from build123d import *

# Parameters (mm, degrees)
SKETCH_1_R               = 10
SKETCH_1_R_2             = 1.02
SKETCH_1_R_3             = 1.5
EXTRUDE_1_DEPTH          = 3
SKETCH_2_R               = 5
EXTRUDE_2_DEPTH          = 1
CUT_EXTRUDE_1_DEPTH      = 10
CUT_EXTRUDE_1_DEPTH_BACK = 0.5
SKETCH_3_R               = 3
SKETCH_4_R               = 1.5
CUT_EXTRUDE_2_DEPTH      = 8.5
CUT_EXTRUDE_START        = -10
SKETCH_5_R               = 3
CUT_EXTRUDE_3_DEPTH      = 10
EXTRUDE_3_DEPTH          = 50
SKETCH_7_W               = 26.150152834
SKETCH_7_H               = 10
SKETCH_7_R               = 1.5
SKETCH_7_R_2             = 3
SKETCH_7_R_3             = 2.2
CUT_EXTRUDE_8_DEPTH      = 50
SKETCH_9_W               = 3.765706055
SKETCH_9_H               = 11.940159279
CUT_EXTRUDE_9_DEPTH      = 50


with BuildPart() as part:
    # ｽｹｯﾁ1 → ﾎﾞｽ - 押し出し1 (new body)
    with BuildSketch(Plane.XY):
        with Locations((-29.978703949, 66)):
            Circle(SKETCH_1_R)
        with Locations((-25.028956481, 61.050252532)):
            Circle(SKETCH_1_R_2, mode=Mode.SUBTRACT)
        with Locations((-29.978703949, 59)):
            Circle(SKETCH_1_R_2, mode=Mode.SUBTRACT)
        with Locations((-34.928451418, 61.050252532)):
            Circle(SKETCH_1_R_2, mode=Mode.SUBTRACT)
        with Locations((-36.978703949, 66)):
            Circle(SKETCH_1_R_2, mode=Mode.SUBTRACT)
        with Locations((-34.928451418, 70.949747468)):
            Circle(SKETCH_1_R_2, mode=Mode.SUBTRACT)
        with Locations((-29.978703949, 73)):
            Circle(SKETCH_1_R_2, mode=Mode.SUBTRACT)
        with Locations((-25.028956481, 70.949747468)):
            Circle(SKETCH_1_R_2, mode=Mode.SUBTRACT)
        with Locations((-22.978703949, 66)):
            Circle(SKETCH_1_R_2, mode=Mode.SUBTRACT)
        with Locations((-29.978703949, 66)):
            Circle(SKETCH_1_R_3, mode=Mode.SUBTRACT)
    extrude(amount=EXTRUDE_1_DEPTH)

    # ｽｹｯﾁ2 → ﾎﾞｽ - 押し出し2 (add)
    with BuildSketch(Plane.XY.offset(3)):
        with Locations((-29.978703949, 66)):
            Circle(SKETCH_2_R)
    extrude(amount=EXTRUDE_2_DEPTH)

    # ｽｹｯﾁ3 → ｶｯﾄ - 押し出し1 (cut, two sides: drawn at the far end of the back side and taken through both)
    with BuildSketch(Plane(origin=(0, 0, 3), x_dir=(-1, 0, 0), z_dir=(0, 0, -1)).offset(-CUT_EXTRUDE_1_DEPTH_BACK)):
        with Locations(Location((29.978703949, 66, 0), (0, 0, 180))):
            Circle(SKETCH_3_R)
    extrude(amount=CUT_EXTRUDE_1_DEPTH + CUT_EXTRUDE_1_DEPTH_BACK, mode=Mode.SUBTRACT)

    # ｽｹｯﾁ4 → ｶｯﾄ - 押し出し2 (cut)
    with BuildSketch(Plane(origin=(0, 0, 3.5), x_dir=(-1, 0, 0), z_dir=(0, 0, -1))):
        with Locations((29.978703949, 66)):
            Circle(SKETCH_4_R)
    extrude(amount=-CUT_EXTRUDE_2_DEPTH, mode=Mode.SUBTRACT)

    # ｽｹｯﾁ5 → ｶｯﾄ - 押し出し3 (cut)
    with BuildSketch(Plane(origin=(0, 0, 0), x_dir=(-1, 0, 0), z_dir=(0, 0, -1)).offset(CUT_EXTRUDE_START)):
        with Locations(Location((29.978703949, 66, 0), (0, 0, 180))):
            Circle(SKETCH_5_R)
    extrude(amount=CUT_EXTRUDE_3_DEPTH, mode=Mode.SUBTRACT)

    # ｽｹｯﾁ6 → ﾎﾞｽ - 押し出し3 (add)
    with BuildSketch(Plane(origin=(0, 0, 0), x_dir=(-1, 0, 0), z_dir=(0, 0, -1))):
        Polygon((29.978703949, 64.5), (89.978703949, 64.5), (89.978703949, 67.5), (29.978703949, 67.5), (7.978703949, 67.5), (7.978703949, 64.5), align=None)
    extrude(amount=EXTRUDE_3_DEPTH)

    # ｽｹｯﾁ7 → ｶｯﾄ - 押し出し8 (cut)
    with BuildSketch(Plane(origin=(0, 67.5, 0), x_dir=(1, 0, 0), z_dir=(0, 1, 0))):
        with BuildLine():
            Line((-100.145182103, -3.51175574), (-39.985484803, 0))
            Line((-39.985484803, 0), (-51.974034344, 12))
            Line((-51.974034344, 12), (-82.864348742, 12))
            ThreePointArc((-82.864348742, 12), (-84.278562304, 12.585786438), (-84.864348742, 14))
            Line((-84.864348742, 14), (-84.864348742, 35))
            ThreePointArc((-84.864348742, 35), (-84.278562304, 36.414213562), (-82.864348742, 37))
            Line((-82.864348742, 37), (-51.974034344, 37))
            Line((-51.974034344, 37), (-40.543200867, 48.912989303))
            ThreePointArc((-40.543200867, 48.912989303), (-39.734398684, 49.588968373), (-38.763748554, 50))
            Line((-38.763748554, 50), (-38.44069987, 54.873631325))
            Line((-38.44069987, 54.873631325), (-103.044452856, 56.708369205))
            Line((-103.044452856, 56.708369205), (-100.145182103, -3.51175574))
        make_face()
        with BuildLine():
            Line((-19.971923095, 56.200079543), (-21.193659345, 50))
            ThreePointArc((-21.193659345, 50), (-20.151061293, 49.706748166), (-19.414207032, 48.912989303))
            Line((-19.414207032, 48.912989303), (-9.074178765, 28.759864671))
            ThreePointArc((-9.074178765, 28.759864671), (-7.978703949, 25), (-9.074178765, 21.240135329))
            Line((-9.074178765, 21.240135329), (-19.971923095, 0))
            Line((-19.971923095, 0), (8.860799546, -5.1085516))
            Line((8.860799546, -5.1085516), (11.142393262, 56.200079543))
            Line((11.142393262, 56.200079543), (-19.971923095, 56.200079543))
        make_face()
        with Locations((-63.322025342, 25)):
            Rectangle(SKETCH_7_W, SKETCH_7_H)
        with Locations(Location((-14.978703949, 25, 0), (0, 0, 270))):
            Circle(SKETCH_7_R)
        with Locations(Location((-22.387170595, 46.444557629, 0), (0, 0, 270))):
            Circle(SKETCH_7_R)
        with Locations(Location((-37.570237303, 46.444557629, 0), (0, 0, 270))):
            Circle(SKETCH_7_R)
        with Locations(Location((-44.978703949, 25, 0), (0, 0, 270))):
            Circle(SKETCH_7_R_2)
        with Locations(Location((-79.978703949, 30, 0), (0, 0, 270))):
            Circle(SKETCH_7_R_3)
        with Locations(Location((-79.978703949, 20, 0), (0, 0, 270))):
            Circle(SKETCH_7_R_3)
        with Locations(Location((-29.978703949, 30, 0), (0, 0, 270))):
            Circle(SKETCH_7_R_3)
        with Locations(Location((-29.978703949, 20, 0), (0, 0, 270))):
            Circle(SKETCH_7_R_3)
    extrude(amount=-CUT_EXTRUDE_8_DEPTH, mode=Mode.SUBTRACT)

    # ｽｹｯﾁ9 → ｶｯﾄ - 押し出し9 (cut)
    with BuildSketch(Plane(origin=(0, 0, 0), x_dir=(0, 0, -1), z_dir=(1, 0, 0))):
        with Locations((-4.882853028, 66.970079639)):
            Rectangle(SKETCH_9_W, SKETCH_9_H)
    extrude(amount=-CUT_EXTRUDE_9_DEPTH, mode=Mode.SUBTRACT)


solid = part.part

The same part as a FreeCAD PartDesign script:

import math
import FreeCAD as App
import Part
import Sketcher

V = App.Vector

doc = App.newDocument("Part")
body = doc.addObject("PartDesign::Body", "Body")

# Sketch on XY plane
sketch1 = body.newObject("Sketcher::SketchObject", "Sketch")
sketch1.AttachmentSupport = (doc.getObject("XY_Plane"), [""])
sketch1.MapMode = "FlatFace"
sketch1.addGeometry(Part.Circle(V(-30, 66, 0), V(0, 0, 1), 10), False)
sketch1.addGeometry(Part.Circle(V(-34.9, 61.1, 0), V(0, 0, 1), 1), False)
sketch1.addGeometry(Part.Circle(V(-30, 59, 0), V(0, 0, 1), 1), False)
sketch1.addGeometry(Part.Circle(V(-25, 61.1, 0), V(0, 0, 1), 1), False)
sketch1.addGeometry(Part.Circle(V(-37, 66, 0), V(0, 0, 1), 1), False)
sketch1.addGeometry(Part.Circle(V(-34.9, 70.9, 0), V(0, 0, 1), 1), False)
sketch1.addGeometry(Part.Circle(V(-30, 66, 0), V(0, 0, 1), 1.5), False)
sketch1.addGeometry(Part.Circle(V(-23, 66, 0), V(0, 0, 1), 1), False)
sketch1.addGeometry(Part.Circle(V(-30, 73, 0), V(0, 0, 1), 1), False)
sketch1.addGeometry(Part.Circle(V(-25, 70.9, 0), V(0, 0, 1), 1), False)
sketch1.addConstraint(Sketcher.Constraint("Coincident", 6, 3, 0, 3))
sketch1.addConstraint(Sketcher.Constraint("Equal", 1, 2))
sketch1.addConstraint(Sketcher.Constraint("Equal", 2, 3))
sketch1.addConstraint(Sketcher.Constraint("Equal", 3, 4))
sketch1.addConstraint(Sketcher.Constraint("Equal", 4, 5))
sketch1.addConstraint(Sketcher.Constraint("Equal", 5, 7))
sketch1.addConstraint(Sketcher.Constraint("Equal", 7, 8))
sketch1.addConstraint(Sketcher.Constraint("Equal", 8, 9))
sketch1.addConstraint(Sketcher.Constraint("Horizontal", 1, 3, 3, 3))
sketch1.addConstraint(Sketcher.Constraint("Horizontal", 0, 3, 4, 3))
sketch1.addConstraint(Sketcher.Constraint("Horizontal", 6, 3, 7, 3))
sketch1.addConstraint(Sketcher.Constraint("Horizontal", 5, 3, 9, 3))
sketch1.addConstraint(Sketcher.Constraint("Vertical", 0, 3, 2, 3))
sketch1.addConstraint(Sketcher.Constraint("Vertical", 1, 3, 5, 3))
sketch1.addConstraint(Sketcher.Constraint("Vertical", 6, 3, 8, 3))
sketch1.addConstraint(Sketcher.Constraint("Vertical", 3, 3, 9, 3))
sketch1.addConstraint(Sketcher.Constraint("Diameter", 0, 20.0))
sketch1.addConstraint(Sketcher.Constraint("Diameter", 6, 3.0))
sketch1.addConstraint(Sketcher.Constraint("Diameter", 1, 2.04))
sketch1.addConstraint(Sketcher.Constraint("DistanceY", -1, 1, 0, 3, 66.0))
sketch1.addConstraint(Sketcher.Constraint("DistanceY", -1, 1, 2, 3, 59.0))
sketch1.addConstraint(Sketcher.Constraint("DistanceY", -1, 1, 8, 3, 73.0))
sketch1.addConstraint(Sketcher.Constraint("DistanceX", 4, 3, 0, 3, 7.0))
sketch1.addConstraint(Sketcher.Constraint("DistanceX", 0, 3, 7, 3, 7.0))
sketch1.addConstraint(Sketcher.Constraint("DistanceX", 1, 3, -1, 1, 34.928451))
sketch1.addConstraint(Sketcher.Constraint("DistanceX", 0, 3, -1, 1, 29.978704))
sketch1.addConstraint(Sketcher.Constraint("DistanceY", -1, 1, 1, 3, 61.050253))
sketch1.addConstraint(Sketcher.Constraint("DistanceX", 3, 3, -1, 1, 25.028956))
sketch1.addConstraint(Sketcher.Constraint("DistanceY", -1, 1, 5, 3, 70.949747))
pad1 = body.newObject("PartDesign::Pad", "Pad")
pad1.Profile = sketch1
pad1.Length = 3

# Sketch on XY plane
sketch2 = body.newObject("Sketcher::SketchObject", "Sketch001")
sketch2.AttachmentSupport = (doc.getObject("XY_Plane"), [""])
sketch2.MapMode = "FlatFace"
sketch2.AttachmentOffset = App.Placement(V(0, 0, 3), App.Rotation())
sketch2.addGeometry(Part.Circle(V(-30, 66, 0), V(0, 0, 1), 5), False)
sketch2.addConstraint(Sketcher.Constraint("Diameter", 0, 10.0))
sketch2.addConstraint(Sketcher.Constraint("DistanceY", -1, 1, 0, 3, 66.0))
sketch2.addConstraint(Sketcher.Constraint("DistanceX", 0, 3, -1, 1, 29.978704))
pad2 = body.newObject("PartDesign::Pad", "Pad001")
pad2.Profile = sketch2
pad2.Length = 1

# Sketch on XY plane
sketch3 = body.newObject("Sketcher::SketchObject", "Sketch002")
sketch3.AttachmentSupport = (doc.getObject("XY_Plane"), [""])
sketch3.MapMode = "FlatFace"
sketch3.AttachmentOffset = App.Placement(V(0, 0, 3), App.Rotation())
sketch3.addGeometry(Part.Circle(V(-30, 66, 0), V(0, 0, 1), 3), False)
sketch3.addConstraint(Sketcher.Constraint("Diameter", 0, 6.0))
sketch3.addConstraint(Sketcher.Constraint("DistanceY", -1, 1, 0, 3, 66.0))
sketch3.addConstraint(Sketcher.Constraint("DistanceX", 0, 3, -1, 1, 29.978704))
pocket1 = body.newObject("PartDesign::Pocket", "Pocket")
pocket1.Profile = sketch3
pocket1.Type = "TwoLengths"
pocket1.Length = 10
pocket1.Length2 = 0.5

# Sketch on XY plane
sketch4 = body.newObject("Sketcher::SketchObject", "Sketch003")
sketch4.AttachmentSupport = (doc.getObject("XY_Plane"), [""])
sketch4.MapMode = "FlatFace"
sketch4.AttachmentOffset = App.Placement(V(0, 0, 3.5), App.Rotation())
sketch4.addGeometry(Part.Circle(V(-30, 66, 0), V(0, 0, 1), 1.5), False)
sketch4.addConstraint(Sketcher.Constraint("Diameter", 0, 3.0))
sketch4.addConstraint(Sketcher.Constraint("DistanceY", -1, 1, 0, 3, 66.0))
sketch4.addConstraint(Sketcher.Constraint("DistanceX", 0, 3, -1, 1, 29.978704))
pocket2 = body.newObject("PartDesign::Pocket", "Pocket001")
pocket2.Profile = sketch4
pocket2.Length = 8.5
pocket2.Reversed = True

# Sketch on XY plane
sketch5 = body.newObject("Sketcher::SketchObject", "Sketch004")
sketch5.AttachmentSupport = (doc.getObject("XY_Plane"), [""])
sketch5.MapMode = "FlatFace"
sketch5.AttachmentOffset = App.Placement(V(0, 0, 10), App.Rotation())
sketch5.addGeometry(Part.Circle(V(-30, 66, 0), V(0, 0, 1), 3), False)
sketch5.addConstraint(Sketcher.Constraint("Diameter", 0, 6.0))
sketch5.addConstraint(Sketcher.Constraint("DistanceY", -1, 1, 0, 3, 66.0))
sketch5.addConstraint(Sketcher.Constraint("DistanceX", 0, 3, -1, 1, 29.978704))
pocket3 = body.newObject("PartDesign::Pocket", "Pocket002")
pocket3.Profile = sketch5
pocket3.Length = 10

# Sketch on XY plane
sketch6 = body.newObject("Sketcher::SketchObject", "Sketch005")
sketch6.AttachmentSupport = (doc.getObject("XY_Plane"), [""])
sketch6.MapMode = "FlatFace"
sketch6.addGeometry(Part.LineSegment(V(-90, 64.5, 0), V(-90, 67.5, 0)), False)
sketch6.addGeometry(Part.LineSegment(V(-90, 67.5, 0), V(-8, 67.5, 0)), False)
sketch6.addGeometry(Part.LineSegment(V(-8, 67.5, 0), V(-8, 64.5, 0)), False)
sketch6.addGeometry(Part.LineSegment(V(-8, 64.5, 0), V(-90, 64.5, 0)), False)
sketch6.addConstraint(Sketcher.Constraint("Coincident", 0, 2, 1, 1))
sketch6.addConstraint(Sketcher.Constraint("Coincident", 1, 2, 2, 1))
sketch6.addConstraint(Sketcher.Constraint("Coincident", 2, 2, 3, 1))
sketch6.addConstraint(Sketcher.Constraint("Coincident", 3, 2, 0, 1))
sketch6.addConstraint(Sketcher.Constraint("Vertical", 0))
sketch6.addConstraint(Sketcher.Constraint("Horizontal", 1))
sketch6.addConstraint(Sketcher.Constraint("Vertical", 2))
sketch6.addConstraint(Sketcher.Constraint("Horizontal", 3))
sketch6.addConstraint(Sketcher.Constraint("DistanceX", 1, 1, 1, 2, 82.0))
sketch6.addConstraint(Sketcher.Constraint("DistanceY", 0, 1, 0, 2, 3.0))
sketch6.addConstraint(Sketcher.Constraint("DistanceY", -1, 1, 0, 2, 67.5))
sketch6.addConstraint(Sketcher.Constraint("DistanceX", 0, 2, -1, 1, 89.978704))
pad3 = body.newObject("PartDesign::Pad", "Pad002")
pad3.Profile = sketch6
pad3.Length = 50
pad3.Reversed = True

# Sketch on XZ plane
sketch7 = body.newObject("Sketcher::SketchObject", "Sketch006")
sketch7.AttachmentSupport = (doc.getObject("XZ_Plane"), [""])
sketch7.MapMode = "FlatFace"
sketch7.AttachmentOffset = App.Placement(V(0, 0, -67.5), App.Rotation())
sketch7.addGeometry(Part.LineSegment(V(-100.1, 3.5, 0), V(-40, 0, 0)), False)
sketch7.addGeometry(Part.LineSegment(V(-40, 0, 0), V(-52, -12, 0)), False)
sketch7.addGeometry(Part.LineSegment(V(-52, -12, 0), V(-82.9, -12, 0)), False)
sketch7.addGeometry(Part.ArcOfCircle(Part.Circle(V(-82.9, -14, 0), V(0, 0, 1), 2), math.radians(90), math.radians(180)), False)
sketch7.addGeometry(Part.LineSegment(V(-84.9, -14, 0), V(-84.9, -35, 0)), False)
sketch7.addGeometry(Part.ArcOfCircle(Part.Circle(V(-82.9, -35, 0), V(0, 0, 1), 2), math.radians(-180), math.radians(-90)), False)
sketch7.addGeometry(Part.LineSegment(V(-82.9, -37, 0), V(-52, -37, 0)), False)
sketch7.addGeometry(Part.LineSegment(V(-52, -37, 0), V(-40.5, -48.9, 0)), False)
sketch7.addGeometry(Part.ArcOfCircle(Part.Circle(V(-37.9, -46.5, 0), V(0, 0, 1), 3.6), math.radians(-138), math.radians(-104)), False)
sketch7.addGeometry(Part.LineSegment(V(-38.8, -50, 0), V(-38.4, -54.9, 0)), False)
sketch7.addGeometry(Part.LineSegment(V(-38.4, -54.9, 0), V(-103, -56.7, 0)), False)
sketch7.addGeometry(Part.LineSegment(V(-103, -56.7, 0), V(-100.1, 3.5, 0)), False)
sketch7.addGeometry(Part.LineSegment(V(-20, -56.2, 0), V(-21.2, -50, 0)), False)
sketch7.addGeometry(Part.ArcOfCircle(Part.Circle(V(-21.2, -48, 0), V(0, 0, 1), 2), math.radians(-90), math.radians(-27)), False)
sketch7.addGeometry(Part.LineSegment(V(-19.4, -48.9, 0), V(-9.1, -28.8, 0)), False)
sketch7.addGeometry(Part.ArcOfCircle(Part.Circle(V(-15, -25, 0), V(0, 0, 1), 7), math.radians(-32), math.radians(32)), False)
sketch7.addGeometry(Part.LineSegment(V(-9.1, -21.2, 0), V(-20, 0, 0)), False)
sketch7.addGeometry(Part.LineSegment(V(-20, 0, 0), V(8.9, 5.1, 0)), False)
sketch7.addGeometry(Part.LineSegment(V(8.9, 5.1, 0), V(11.1, -56.2, 0)), False)
sketch7.addGeometry(Part.LineSegment(V(11.1, -56.2, 0), V(-20, -56.2, 0)), False)
sketch7.addGeometry(Part.LineSegment(V(-76.4, -30, 0), V(-76.4, -20, 0)), False)
sketch7.addGeometry(Part.LineSegment(V(-76.4, -20, 0), V(-50.2, -20, 0)), False)
sketch7.addGeometry(Part.LineSegment(V(-50.2, -20, 0), V(-50.2, -30, 0)), False)
sketch7.addGeometry(Part.LineSegment(V(-50.2, -30, 0), V(-76.4, -30, 0)), False)
sketch7.addGeometry(Part.Circle(V(-15, -25, 0), V(0, 0, 1), 1.5), False)
sketch7.addGeometry(Part.Circle(V(-22.4, -46.4, 0), V(0, 0, 1), 1.5), False)
sketch7.addGeometry(Part.Circle(V(-37.6, -46.4, 0), V(0, 0, 1), 1.5), False)
sketch7.addGeometry(Part.Circle(V(-45, -25, 0), V(0, 0, 1), 3), False)
sketch7.addGeometry(Part.Circle(V(-80, -30, 0), V(0, 0, 1), 2.2), False)
sketch7.addGeometry(Part.Circle(V(-80, -20, 0), V(0, 0, 1), 2.2), False)
sketch7.addGeometry(Part.Circle(V(-30, -30, 0), V(0, 0, 1), 2.2), False)
sketch7.addGeometry(Part.Circle(V(-30, -20, 0), V(0, 0, 1), 2.2), False)
sketch7.addConstraint(Sketcher.Constraint("Coincident", 0, 2, 1, 1))
sketch7.addConstraint(Sketcher.Constraint("Coincident", 1, 2, 2, 1))
sketch7.addConstraint(Sketcher.Constraint("Tangent", 2, 2, 3, 1))
sketch7.addConstraint(Sketcher.Constraint("Tangent", 3, 2, 4, 1))
sketch7.addConstraint(Sketcher.Constraint("Tangent", 4, 2, 5, 1))
sketch7.addConstraint(Sketcher.Constraint("Tangent", 5, 2, 6, 1))
sketch7.addConstraint(Sketcher.Constraint("Coincident", 6, 2, 7, 1))
sketch7.addConstraint(Sketcher.Constraint("Coincident", 7, 2, 8, 1))
sketch7.addConstraint(Sketcher.Constraint("Coincident", 8, 2, 9, 1))
sketch7.addConstraint(Sketcher.Constraint("Coincident", 9, 2, 10, 1))
sketch7.addConstraint(Sketcher.Constraint("Coincident", 10, 2, 11, 1))
sketch7.addConstraint(Sketcher.Constraint("Coincident", 11, 2, 0, 1))
sketch7.addConstraint(Sketcher.Constraint("Coincident", 12, 2, 13, 1))
sketch7.addConstraint(Sketcher.Constraint("Tangent", 13, 2, 14, 1))
sketch7.addConstraint(Sketcher.Constraint("Coincident", 14, 2, 15, 1))
sketch7.addConstraint(Sketcher.Constraint("Coincident", 15, 2, 16, 1))
sketch7.addConstraint(Sketcher.Constraint("Coincident", 16, 2, 17, 1))
sketch7.addConstraint(Sketcher.Constraint("Coincident", 17, 2, 18, 1))
sketch7.addConstraint(Sketcher.Constraint("Coincident", 18, 2, 19, 1))
sketch7.addConstraint(Sketcher.Constraint("Coincident", 19, 2, 12, 1))
sketch7.addConstraint(Sketcher.Constraint("Coincident", 20, 2, 21, 1))
sketch7.addConstraint(Sketcher.Constraint("Coincident", 21, 2, 22, 1))
sketch7.addConstraint(Sketcher.Constraint("Coincident", 22, 2, 23, 1))
sketch7.addConstraint(Sketcher.Constraint("Coincident", 23, 2, 20, 1))
sketch7.addConstraint(Sketcher.Constraint("Horizontal", 2))
sketch7.addConstraint(Sketcher.Constraint("Vertical", 4))
sketch7.addConstraint(Sketcher.Constraint("Horizontal", 6))
sketch7.addConstraint(Sketcher.Constraint("Horizontal", 19))
sketch7.addConstraint(Sketcher.Constraint("Vertical", 20))
sketch7.addConstraint(Sketcher.Constraint("Horizontal", 21))
sketch7.addConstraint(Sketcher.Constraint("Vertical", 22))
sketch7.addConstraint(Sketcher.Constraint("Horizontal", 23))
sketch7.addConstraint(Sketcher.Constraint("Coincident", 24, 3, 15, 3))
sketch7.addConstraint(Sketcher.Constraint("Equal", 3, 5))
sketch7.addConstraint(Sketcher.Constraint("Equal", 5, 13))
sketch7.addConstraint(Sketcher.Constraint("Equal", 24, 25))
sketch7.addConstraint(Sketcher.Constraint("Equal", 25, 26))
sketch7.addConstraint(Sketcher.Constraint("Equal", 28, 29))
sketch7.addConstraint(Sketcher.Constraint("Equal", 29, 30))
sketch7.addConstraint(Sketcher.Constraint("Equal", 30, 31))
sketch7.addConstraint(Sketcher.Constraint("PointOnObject", 0, 2, -1))
sketch7.addConstraint(Sketcher.Constraint("PointOnObject", 16, 2, -1))
sketch7.addConstraint(Sketcher.Constraint("Horizontal", 25, 3, 26, 3))
sketch7.addConstraint(Sketcher.Constraint("Horizontal", 24, 3, 27, 3))
sketch7.addConstraint(Sketcher.Constraint("Horizontal", 28, 3, 30, 3))
sketch7.addConstraint(Sketcher.Constraint("Horizontal", 29, 3, 31, 3))
sketch7.addConstraint(Sketcher.Constraint("Horizontal", 8, 2, 12, 2))
sketch7.addConstraint(Sketcher.Constraint("Horizontal", 7, 2, 13, 2))
sketch7.addConstraint(Sketcher.Constraint("Horizontal", 31, 3, 20, 2))
sketch7.addConstraint(Sketcher.Constraint("Horizontal", 30, 3, 22, 2))
sketch7.addConstraint(Sketcher.Constraint("Vertical", 28, 3, 29, 3))
sketch7.addConstraint(Sketcher.Constraint("Vertical", 30, 3, 31, 3))
sketch7.addConstraint(Sketcher.Constraint("Vertical", 1, 2, 6, 2))
sketch7.addConstraint(Sketcher.Constraint("Vertical", 13, 3, 12, 2))
sketch7.addConstraint(Sketcher.Constraint("Vertical", 14, 2, 15, 2))
sketch7.addConstraint(Sketcher.Constraint("Vertical", 16, 2, 19, 2))
sketch7.addConstraint(Sketcher.Constraint("Diameter", 24, 3.0))
sketch7.addConstraint(Sketcher.Constraint("Diameter", 27, 6.0))
sketch7.addConstraint(Sketcher.Constraint("Radius", 3, 2.0))
sketch7.addConstraint(Sketcher.Constraint("Radius", 15, 7.0))
sketch7.addConstraint(Sketcher.Constraint("Diameter", 28, 4.4))
sketch7.addConstraint(Sketcher.Constraint("DistanceY", 4, 2, 4, 1, 21.0))
sketch7.addConstraint(Sketcher.Constraint("DistanceY", 20, 1, 20, 2, 10.0))
sketch7.addConstraint(Sketcher.Constraint("DistanceY", 3, 3, -1, 1, 14.0))
sketch7.addConstraint(Sketcher.Constraint("DistanceY", 13, 3, -1, 1, 48.0))
sketch7.addConstraint(Sketcher.Constraint("DistanceY", 15, 3, -1, 1, 25.0))
sketch7.addConstraint(Sketcher.Constraint("DistanceY", 28, 3, -1, 1, 30.0))
sketch7.addConstraint(Sketcher.Constraint("DistanceX", 27, 3, 24, 3, 30.0))
sketch7.addConstraint(Sketcher.Constraint("DistanceX", 28, 3, 27, 3, 35.0))
sketch7.addConstraint(Sketcher.Constraint("DistanceX", 30, 3, 24, 3, 15.0))
sketch7.addConstraint(Sketcher.Constraint("Radius", 8, 3.57879))
sketch7.addConstraint(Sketcher.Constraint("Distance", 10, 64.629801))
sketch7.addConstraint(Sketcher.Constraint("DistanceX", 7, 2, -1, 1, 40.543201))
sketch7.addConstraint(Sketcher.Constraint("DistanceX", 9, 2, -1, 1, 38.4407))
sketch7.addConstraint(Sketcher.Constraint("DistanceX", -1, 1, 17, 2, 8.8608))
sketch7.addConstraint(Sketcher.Constraint("DistanceX", 20, 2, -1, 1, 76.397102))
sketch7.addConstraint(Sketcher.Constraint("DistanceX", 13, 2, 18, 2, 30.5566))
sketch7.addConstraint(Sketcher.Constraint("Distance", 14, 22.65093))
sketch7.addConstraint(Sketcher.Constraint("Distance", 17, 29.281789))
sketch7.addConstraint(Sketcher.Constraint("Distance", 18, 61.351071))
sketch7.addConstraint(Sketcher.Constraint("DistanceX", 2, 2, 2, 1, 30.890314))
sketch7.addConstraint(Sketcher.Constraint("DistanceX", 19, 2, 19, 1, 31.114316))
sketch7.addConstraint(Sketcher.Constraint("DistanceX", 21, 1, 21, 2, 26.150153))
sketch7.addConstraint(Sketcher.Constraint("DistanceX", 3, 3, -1, 1, 82.864349))
sketch7.addConstraint(Sketcher.Constraint("DistanceX", 8, 3, -1, 1, 37.868779))
sketch7.addConstraint(Sketcher.Constraint("DistanceY", 8, 3, -1, 1, 46.534921))
sketch7.addConstraint(Sketcher.Constraint("DistanceX", 13, 3, -1, 1, 21.193659))
sketch7.addConstraint(Sketcher.Constraint("DistanceX", 25, 3, -1, 1, 22.387171))
sketch7.addConstraint(Sketcher.Constraint("DistanceY", 9, 2, -1, 1, 54.873631))
sketch7.addConstraint(Sketcher.Constraint("DistanceY", 10, 2, -1, 1, 56.708369))
sketch7.addConstraint(Sketcher.Constraint("DistanceX", 8, 3, 26, 3, 0.298541))
sketch7.addConstraint(Sketcher.Constraint("DistanceX", 0, 2, 31, 3, 10.006781))
sketch7.addConstraint(Sketcher.Constraint("DistanceY", 7, 2, 26, 3, 2.468432))
sketch7.addConstraint(Sketcher.Constraint("DistanceX", 11, 2, 29, 3, 20.166478))
sketch7.addConstraint(Sketcher.Constraint("Distance", 0, 60.262108))
pocket4 = body.newObject("PartDesign::Pocket", "Pocket003")
pocket4.Profile = sketch7
pocket4.Length = 50
pocket4.Reversed = True

# Sketch on YZ plane
sketch8 = body.newObject("Sketcher::SketchObject", "Sketch007")
sketch8.AttachmentSupport = (doc.getObject("YZ_Plane"), [""])
sketch8.MapMode = "FlatFace"
sketch8.addGeometry(Part.LineSegment(V(72.9, 6.8, 0), V(61, 6.8, 0)), False)
sketch8.addGeometry(Part.LineSegment(V(61, 6.8, 0), V(61, 3, 0)), False)
sketch8.addGeometry(Part.LineSegment(V(61, 3, 0), V(72.9, 3, 0)), False)
sketch8.addGeometry(Part.LineSegment(V(72.9, 3, 0), V(72.9, 6.8, 0)), False)
sketch8.addConstraint(Sketcher.Constraint("Coincident", 0, 2, 1, 1))
sketch8.addConstraint(Sketcher.Constraint("Coincident", 1, 2, 2, 1))
sketch8.addConstraint(Sketcher.Constraint("Coincident", 2, 2, 3, 1))
sketch8.addConstraint(Sketcher.Constraint("Coincident", 3, 2, 0, 1))
sketch8.addConstraint(Sketcher.Constraint("Horizontal", 0))
sketch8.addConstraint(Sketcher.Constraint("Vertical", 1))
sketch8.addConstraint(Sketcher.Constraint("Horizontal", 2))
sketch8.addConstraint(Sketcher.Constraint("Vertical", 3))
sketch8.addConstraint(Sketcher.Constraint("DistanceX", -1, 1, 0, 2, 61.0))
sketch8.addConstraint(Sketcher.Constraint("DistanceY", -1, 1, 1, 2, 3.0))
sketch8.addConstraint(Sketcher.Constraint("DistanceX", 0, 2, 0, 1, 11.940159))
sketch8.addConstraint(Sketcher.Constraint("DistanceY", 1, 2, 1, 1, 3.765706))
pocket5 = body.newObject("PartDesign::Pocket", "Pocket004")
pocket5.Profile = sketch8
pocket5.Length = 50

doc.recompute()
